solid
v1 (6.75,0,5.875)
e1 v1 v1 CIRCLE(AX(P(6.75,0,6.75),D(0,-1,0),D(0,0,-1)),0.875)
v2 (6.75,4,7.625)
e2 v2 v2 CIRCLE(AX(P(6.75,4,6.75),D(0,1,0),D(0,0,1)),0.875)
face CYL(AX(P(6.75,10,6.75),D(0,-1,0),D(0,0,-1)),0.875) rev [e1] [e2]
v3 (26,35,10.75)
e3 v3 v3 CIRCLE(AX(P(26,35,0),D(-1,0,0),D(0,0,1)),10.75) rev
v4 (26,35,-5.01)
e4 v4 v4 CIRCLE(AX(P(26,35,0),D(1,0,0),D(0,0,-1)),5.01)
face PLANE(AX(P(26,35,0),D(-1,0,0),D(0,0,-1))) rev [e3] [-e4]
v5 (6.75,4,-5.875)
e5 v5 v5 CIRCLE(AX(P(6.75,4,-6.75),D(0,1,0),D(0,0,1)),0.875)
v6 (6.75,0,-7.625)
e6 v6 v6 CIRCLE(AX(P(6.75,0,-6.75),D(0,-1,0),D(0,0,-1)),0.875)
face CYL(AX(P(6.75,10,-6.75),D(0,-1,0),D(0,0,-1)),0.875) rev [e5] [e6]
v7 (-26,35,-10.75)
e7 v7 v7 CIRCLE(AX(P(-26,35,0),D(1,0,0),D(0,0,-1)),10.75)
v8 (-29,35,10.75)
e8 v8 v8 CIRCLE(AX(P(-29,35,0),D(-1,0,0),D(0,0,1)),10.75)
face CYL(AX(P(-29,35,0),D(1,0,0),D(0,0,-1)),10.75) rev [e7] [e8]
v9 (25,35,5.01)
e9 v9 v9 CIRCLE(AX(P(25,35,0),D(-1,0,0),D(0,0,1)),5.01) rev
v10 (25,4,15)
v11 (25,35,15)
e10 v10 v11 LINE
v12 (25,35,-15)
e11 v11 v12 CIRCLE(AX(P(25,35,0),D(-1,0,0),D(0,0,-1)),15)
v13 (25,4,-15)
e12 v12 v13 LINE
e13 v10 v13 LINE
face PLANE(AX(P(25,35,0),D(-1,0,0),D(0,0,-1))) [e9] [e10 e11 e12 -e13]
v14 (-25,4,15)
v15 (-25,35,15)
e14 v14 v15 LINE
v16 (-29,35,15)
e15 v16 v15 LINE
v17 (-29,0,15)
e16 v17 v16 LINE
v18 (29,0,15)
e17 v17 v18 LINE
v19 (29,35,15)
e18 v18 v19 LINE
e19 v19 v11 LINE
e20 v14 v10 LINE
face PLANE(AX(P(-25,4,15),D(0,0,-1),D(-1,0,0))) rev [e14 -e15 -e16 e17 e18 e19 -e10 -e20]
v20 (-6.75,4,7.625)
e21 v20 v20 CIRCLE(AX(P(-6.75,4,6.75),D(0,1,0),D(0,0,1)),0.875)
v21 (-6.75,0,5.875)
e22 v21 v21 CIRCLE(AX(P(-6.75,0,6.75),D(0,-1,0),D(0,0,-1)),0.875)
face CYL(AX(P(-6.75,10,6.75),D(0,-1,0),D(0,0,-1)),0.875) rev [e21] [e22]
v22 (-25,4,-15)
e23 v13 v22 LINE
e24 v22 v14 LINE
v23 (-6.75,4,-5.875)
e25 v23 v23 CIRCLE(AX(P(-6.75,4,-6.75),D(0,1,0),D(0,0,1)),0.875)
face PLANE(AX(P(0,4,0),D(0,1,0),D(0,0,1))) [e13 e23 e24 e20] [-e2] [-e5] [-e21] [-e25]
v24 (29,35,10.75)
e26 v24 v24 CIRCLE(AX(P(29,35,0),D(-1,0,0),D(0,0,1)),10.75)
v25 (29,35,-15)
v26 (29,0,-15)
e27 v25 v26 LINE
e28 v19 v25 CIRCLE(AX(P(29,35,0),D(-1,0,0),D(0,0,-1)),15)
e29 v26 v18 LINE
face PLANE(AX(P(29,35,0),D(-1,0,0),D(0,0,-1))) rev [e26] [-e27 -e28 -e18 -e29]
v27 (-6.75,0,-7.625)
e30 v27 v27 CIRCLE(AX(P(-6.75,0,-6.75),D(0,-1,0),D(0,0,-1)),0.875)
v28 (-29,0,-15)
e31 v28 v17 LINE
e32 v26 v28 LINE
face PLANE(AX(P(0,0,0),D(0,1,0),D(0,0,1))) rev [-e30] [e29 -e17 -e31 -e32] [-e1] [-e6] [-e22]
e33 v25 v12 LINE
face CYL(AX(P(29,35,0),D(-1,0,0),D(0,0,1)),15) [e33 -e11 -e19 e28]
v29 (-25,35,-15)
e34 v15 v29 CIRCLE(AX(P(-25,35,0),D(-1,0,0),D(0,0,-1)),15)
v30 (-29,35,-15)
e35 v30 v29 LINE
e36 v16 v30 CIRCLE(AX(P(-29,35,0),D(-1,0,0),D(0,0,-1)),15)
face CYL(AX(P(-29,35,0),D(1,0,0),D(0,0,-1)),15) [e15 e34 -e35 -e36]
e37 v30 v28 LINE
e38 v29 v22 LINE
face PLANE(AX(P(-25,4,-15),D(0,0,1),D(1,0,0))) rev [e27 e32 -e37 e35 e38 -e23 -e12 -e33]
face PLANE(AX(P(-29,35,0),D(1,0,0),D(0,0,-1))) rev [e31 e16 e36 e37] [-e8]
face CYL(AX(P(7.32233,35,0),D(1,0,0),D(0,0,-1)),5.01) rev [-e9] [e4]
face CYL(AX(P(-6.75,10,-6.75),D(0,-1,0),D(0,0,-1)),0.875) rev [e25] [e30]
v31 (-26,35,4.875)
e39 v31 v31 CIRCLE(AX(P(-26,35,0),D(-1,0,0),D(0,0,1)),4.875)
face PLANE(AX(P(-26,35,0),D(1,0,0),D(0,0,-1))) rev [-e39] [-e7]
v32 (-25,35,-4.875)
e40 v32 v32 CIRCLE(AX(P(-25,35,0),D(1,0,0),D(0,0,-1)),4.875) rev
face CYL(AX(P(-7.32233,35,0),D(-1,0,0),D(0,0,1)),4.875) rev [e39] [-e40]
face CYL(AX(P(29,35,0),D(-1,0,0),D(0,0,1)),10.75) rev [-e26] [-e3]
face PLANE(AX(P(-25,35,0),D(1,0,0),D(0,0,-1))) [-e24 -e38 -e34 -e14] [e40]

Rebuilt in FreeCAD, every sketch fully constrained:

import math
import FreeCAD as App
import Part
import Sketcher

doc = App.newDocument("Part")
body = doc.addObject("PartDesign::Body", "Body")

sketch1 = doc.addObject("Sketcher::SketchObject", "Sketch")
body.addObject(sketch1)
sketch1.AttachmentSupport = (doc.XZ_Plane, [""])
sketch1.MapMode = "FlatFace"
sketch1.addGeometry([
    Part.LineSegment(App.Vector(-25, -15, 0), App.Vector(-25, 15, 0)),
    Part.LineSegment(App.Vector(-25, 15, 0), App.Vector(25, 15, 0)),
    Part.LineSegment(App.Vector(25, 15, 0), App.Vector(25, -15, 0)),
    Part.LineSegment(App.Vector(25, -15, 0), App.Vector(-25, -15, 0)),
], False)
sketch1.addConstraint([
    Sketcher.Constraint("Coincident", 0, 2, 1, 1),
    Sketcher.Constraint("Coincident", 1, 2, 2, 1),
    Sketcher.Constraint("Coincident", 2, 2, 3, 1),
    Sketcher.Constraint("Coincident", 3, 2, 0, 1),
    Sketcher.Constraint("Vertical", 0),
    Sketcher.Constraint("Horizontal", 1),
    Sketcher.Constraint("Vertical", 2),
    Sketcher.Constraint("Horizontal", 3),
    Sketcher.Constraint("Symmetric", 0, 2, 2, 2, -1, 1),
    Sketcher.Constraint("DistanceX", 1, 1, 1, 2, 50.0),
    Sketcher.Constraint("DistanceY", 0, 1, 0, 2, 30.0),
])
pad1 = doc.addObject("PartDesign::Pad", "Pad")
body.addObject(pad1)
pad1.Profile = sketch1
pad1.Length = 4
pad1.Reversed = True

sketch2 = doc.addObject("Sketcher::SketchObject", "Sketch001")
body.addObject(sketch2)
sketch2.AttachmentSupport = (doc.YZ_Plane, [""])
sketch2.MapMode = "FlatFace"
sketch2.AttachmentOffset = App.Placement(App.Vector(0, 0, -25), App.Rotation())
sketch2.addGeometry([
    Part.LineSegment(App.Vector(35, -15, 0), App.Vector(0, -15, 0)),
    Part.LineSegment(App.Vector(0, -15, 0), App.Vector(0, 15, 0)),
    Part.LineSegment(App.Vector(0, 15, 0), App.Vector(35, 15, 0)),
    Part.ArcOfCircle(Part.Circle(App.Vector(35, 0, 0), App.Vector(0, 0, 1), 15), math.radians(-90), math.radians(90)),
    Part.Circle(App.Vector(35, 0, 0), App.Vector(0, 0, 1), 10.75),
], False)
sketch2.addConstraint([
    Sketcher.Constraint("Coincident", 0, 2, 1, 1),
    Sketcher.Constraint("Coincident", 1, 2, 2, 1),
    Sketcher.Constraint("Tangent", 2, 2, 3, 2),
    Sketcher.Constraint("Tangent", 3, 1, 0, 1),
    Sketcher.Constraint("Horizontal", 0),
    Sketcher.Constraint("Vertical", 1),
    Sketcher.Constraint("Horizontal", 2),
    Sketcher.Constraint("Coincident", 4, 3, 3, 3),
    Sketcher.Constraint("Symmetric", 0, 2, 1, 2, -1, 1),
    Sketcher.Constraint("Radius", 3, 15.0),
    Sketcher.Constraint("Diameter", 4, 21.5),
    Sketcher.Constraint("DistanceX", 0, 2, 0, 1, 35.0),
])
pad2 = doc.addObject("PartDesign::Pad", "Pad001")
body.addObject(pad2)
pad2.Profile = sketch2
pad2.Length = 4
pad2.Reversed = True
doc.recompute()

mirrored = doc.addObject("PartDesign::Mirrored", "Mirrored")
body.addObject(mirrored)
mirrored.Originals = [pad2]
mirrored.MirrorPlane = (doc.YZ_Plane, [""])
body.Tip = mirrored

sketch3 = doc.addObject("Sketcher::SketchObject", "Sketch002")
body.addObject(sketch3)
sketch3.AttachmentSupport = (doc.YZ_Plane, [""])
sketch3.MapMode = "FlatFace"
sketch3.AttachmentOffset = App.Placement(App.Vector(0, 0, -25), App.Rotation())
sketch3.addGeometry([
    Part.Circle(App.Vector(35, 0, 0), App.Vector(0, 0, 1), 10.75),
    Part.Circle(App.Vector(35, 0, 0), App.Vector(0, 0, 1), 6.25),
], False)
sketch3.addConstraint([
    Sketcher.Constraint("Coincident", 1, 3, 0, 3),
    Sketcher.Constraint("PointOnObject", 0, 3, -1),
    Sketcher.Constraint("Diameter", 0, 21.5),
    Sketcher.Constraint("Diameter", 1, 12.5),
    Sketcher.Constraint("DistanceX", -1, 1, 0, 3, 35.0),
])
pad3 = doc.addObject("PartDesign::Pad", "Pad002")
body.addObject(pad3)
pad3.Profile = sketch3
pad3.Length = 1
pad3.Reversed = True
doc.recompute()

mirrored2 = doc.addObject("PartDesign::Mirrored", "Mirrored001")
body.addObject(mirrored2)
mirrored2.Originals = [pad3]
mirrored2.MirrorPlane = (doc.YZ_Plane, [""])
body.Tip = mirrored2

sketch4 = doc.addObject("Sketcher::SketchObject", "Sketch003")
body.addObject(sketch4)
sketch4.AttachmentSupport = (doc.YZ_Plane, [""])
sketch4.MapMode = "FlatFace"
sketch4.AttachmentOffset = App.Placement(App.Vector(0, 0, 26), App.Rotation())
sketch4.addGeometry([
    Part.Circle(App.Vector(35, 0, 0), App.Vector(0, 0, 1), 6.25),
    Part.Circle(App.Vector(35, 0, 0), App.Vector(0, 0, 1), 5.01),
], False)
sketch4.addConstraint([
    Sketcher.Constraint("Coincident", 1, 3, 0, 3),
    Sketcher.Constraint("PointOnObject", 0, 3, -1),
    Sketcher.Constraint("Diameter", 0, 12.5),
    Sketcher.Constraint("Diameter", 1, 10.02),
    Sketcher.Constraint("DistanceX", -1, 1, 0, 3, 35.0),
])
pad4 = doc.addObject("PartDesign::Pad", "Pad003")
body.addObject(pad4)
pad4.Profile = sketch4
pad4.Length = 1
pad4.Reversed = True

sketch5 = doc.addObject("Sketcher::SketchObject", "Sketch004")
body.addObject(sketch5)
sketch5.AttachmentSupport = (doc.YZ_Plane, [""])
sketch5.MapMode = "FlatFace"
sketch5.AttachmentOffset = App.Placement(App.Vector(0, 0, -25), App.Rotation())
sketch5.addGeometry([
    Part.Circle(App.Vector(35, 0, 0), App.Vector(0, 0, 1), 6.25),
    Part.Circle(App.Vector(35, 0, 0), App.Vector(0, 0, 1), 4.875),
], False)
sketch5.addConstraint([
    Sketcher.Constraint("Coincident", 1, 3, 0, 3),
    Sketcher.Constraint("PointOnObject", 0, 3, -1),
    Sketcher.Constraint("Diameter", 0, 12.5),
    Sketcher.Constraint("Diameter", 1, 9.75),
    Sketcher.Constraint("DistanceX", -1, 1, 0, 3, 35.0),
])
pad5 = doc.addObject("PartDesign::Pad", "Pad004")
body.addObject(pad5)
pad5.Profile = sketch5
pad5.Length = 1
pad5.Reversed = True

sketch6 = doc.addObject("Sketcher::SketchObject", "Sketch005")
body.addObject(sketch6)
sketch6.AttachmentSupport = (doc.XZ_Plane, [""])
sketch6.MapMode = "FlatFace"
sketch6.addGeometry([
    Part.Circle(App.Vector(-6.75, 6.75, 0), App.Vector(0, 0, 1), 0.875),
    Part.Circle(App.Vector(6.75, 6.75, 0), App.Vector(0, 0, 1), 0.875),
    Part.Circle(App.Vector(6.75, -6.75, 0), App.Vector(0, 0, 1), 0.875),
    Part.Circle(App.Vector(-6.75, -6.75, 0), App.Vector(0, 0, 1), 0.875),
], False)
sketch6.addConstraint([
    Sketcher.Constraint("Equal", 0, 1),
    Sketcher.Constraint("Equal", 1, 2),
    Sketcher.Constraint("Equal", 2, 3),
    Sketcher.Constraint("Symmetric", 0, 3, 2, 3, -1, 1),
    Sketcher.Constraint("Symmetric", 1, 3, 3, 3, -1, 1),
    Sketcher.Constraint("Symmetric", 0, 3, 1, 3, -2),
    Sketcher.Constraint("Diameter", 0, 1.75),
    Sketcher.Constraint("DistanceX", 0, 3, 1, 3, 13.5),
    Sketcher.Constraint("DistanceY", 2, 3, 1, 3, 13.5),
])
pocket1 = doc.addObject("PartDesign::Pocket", "Pocket")
body.addObject(pocket1)
pocket1.Profile = sketch6
pocket1.Length = 10

doc.recompute()
